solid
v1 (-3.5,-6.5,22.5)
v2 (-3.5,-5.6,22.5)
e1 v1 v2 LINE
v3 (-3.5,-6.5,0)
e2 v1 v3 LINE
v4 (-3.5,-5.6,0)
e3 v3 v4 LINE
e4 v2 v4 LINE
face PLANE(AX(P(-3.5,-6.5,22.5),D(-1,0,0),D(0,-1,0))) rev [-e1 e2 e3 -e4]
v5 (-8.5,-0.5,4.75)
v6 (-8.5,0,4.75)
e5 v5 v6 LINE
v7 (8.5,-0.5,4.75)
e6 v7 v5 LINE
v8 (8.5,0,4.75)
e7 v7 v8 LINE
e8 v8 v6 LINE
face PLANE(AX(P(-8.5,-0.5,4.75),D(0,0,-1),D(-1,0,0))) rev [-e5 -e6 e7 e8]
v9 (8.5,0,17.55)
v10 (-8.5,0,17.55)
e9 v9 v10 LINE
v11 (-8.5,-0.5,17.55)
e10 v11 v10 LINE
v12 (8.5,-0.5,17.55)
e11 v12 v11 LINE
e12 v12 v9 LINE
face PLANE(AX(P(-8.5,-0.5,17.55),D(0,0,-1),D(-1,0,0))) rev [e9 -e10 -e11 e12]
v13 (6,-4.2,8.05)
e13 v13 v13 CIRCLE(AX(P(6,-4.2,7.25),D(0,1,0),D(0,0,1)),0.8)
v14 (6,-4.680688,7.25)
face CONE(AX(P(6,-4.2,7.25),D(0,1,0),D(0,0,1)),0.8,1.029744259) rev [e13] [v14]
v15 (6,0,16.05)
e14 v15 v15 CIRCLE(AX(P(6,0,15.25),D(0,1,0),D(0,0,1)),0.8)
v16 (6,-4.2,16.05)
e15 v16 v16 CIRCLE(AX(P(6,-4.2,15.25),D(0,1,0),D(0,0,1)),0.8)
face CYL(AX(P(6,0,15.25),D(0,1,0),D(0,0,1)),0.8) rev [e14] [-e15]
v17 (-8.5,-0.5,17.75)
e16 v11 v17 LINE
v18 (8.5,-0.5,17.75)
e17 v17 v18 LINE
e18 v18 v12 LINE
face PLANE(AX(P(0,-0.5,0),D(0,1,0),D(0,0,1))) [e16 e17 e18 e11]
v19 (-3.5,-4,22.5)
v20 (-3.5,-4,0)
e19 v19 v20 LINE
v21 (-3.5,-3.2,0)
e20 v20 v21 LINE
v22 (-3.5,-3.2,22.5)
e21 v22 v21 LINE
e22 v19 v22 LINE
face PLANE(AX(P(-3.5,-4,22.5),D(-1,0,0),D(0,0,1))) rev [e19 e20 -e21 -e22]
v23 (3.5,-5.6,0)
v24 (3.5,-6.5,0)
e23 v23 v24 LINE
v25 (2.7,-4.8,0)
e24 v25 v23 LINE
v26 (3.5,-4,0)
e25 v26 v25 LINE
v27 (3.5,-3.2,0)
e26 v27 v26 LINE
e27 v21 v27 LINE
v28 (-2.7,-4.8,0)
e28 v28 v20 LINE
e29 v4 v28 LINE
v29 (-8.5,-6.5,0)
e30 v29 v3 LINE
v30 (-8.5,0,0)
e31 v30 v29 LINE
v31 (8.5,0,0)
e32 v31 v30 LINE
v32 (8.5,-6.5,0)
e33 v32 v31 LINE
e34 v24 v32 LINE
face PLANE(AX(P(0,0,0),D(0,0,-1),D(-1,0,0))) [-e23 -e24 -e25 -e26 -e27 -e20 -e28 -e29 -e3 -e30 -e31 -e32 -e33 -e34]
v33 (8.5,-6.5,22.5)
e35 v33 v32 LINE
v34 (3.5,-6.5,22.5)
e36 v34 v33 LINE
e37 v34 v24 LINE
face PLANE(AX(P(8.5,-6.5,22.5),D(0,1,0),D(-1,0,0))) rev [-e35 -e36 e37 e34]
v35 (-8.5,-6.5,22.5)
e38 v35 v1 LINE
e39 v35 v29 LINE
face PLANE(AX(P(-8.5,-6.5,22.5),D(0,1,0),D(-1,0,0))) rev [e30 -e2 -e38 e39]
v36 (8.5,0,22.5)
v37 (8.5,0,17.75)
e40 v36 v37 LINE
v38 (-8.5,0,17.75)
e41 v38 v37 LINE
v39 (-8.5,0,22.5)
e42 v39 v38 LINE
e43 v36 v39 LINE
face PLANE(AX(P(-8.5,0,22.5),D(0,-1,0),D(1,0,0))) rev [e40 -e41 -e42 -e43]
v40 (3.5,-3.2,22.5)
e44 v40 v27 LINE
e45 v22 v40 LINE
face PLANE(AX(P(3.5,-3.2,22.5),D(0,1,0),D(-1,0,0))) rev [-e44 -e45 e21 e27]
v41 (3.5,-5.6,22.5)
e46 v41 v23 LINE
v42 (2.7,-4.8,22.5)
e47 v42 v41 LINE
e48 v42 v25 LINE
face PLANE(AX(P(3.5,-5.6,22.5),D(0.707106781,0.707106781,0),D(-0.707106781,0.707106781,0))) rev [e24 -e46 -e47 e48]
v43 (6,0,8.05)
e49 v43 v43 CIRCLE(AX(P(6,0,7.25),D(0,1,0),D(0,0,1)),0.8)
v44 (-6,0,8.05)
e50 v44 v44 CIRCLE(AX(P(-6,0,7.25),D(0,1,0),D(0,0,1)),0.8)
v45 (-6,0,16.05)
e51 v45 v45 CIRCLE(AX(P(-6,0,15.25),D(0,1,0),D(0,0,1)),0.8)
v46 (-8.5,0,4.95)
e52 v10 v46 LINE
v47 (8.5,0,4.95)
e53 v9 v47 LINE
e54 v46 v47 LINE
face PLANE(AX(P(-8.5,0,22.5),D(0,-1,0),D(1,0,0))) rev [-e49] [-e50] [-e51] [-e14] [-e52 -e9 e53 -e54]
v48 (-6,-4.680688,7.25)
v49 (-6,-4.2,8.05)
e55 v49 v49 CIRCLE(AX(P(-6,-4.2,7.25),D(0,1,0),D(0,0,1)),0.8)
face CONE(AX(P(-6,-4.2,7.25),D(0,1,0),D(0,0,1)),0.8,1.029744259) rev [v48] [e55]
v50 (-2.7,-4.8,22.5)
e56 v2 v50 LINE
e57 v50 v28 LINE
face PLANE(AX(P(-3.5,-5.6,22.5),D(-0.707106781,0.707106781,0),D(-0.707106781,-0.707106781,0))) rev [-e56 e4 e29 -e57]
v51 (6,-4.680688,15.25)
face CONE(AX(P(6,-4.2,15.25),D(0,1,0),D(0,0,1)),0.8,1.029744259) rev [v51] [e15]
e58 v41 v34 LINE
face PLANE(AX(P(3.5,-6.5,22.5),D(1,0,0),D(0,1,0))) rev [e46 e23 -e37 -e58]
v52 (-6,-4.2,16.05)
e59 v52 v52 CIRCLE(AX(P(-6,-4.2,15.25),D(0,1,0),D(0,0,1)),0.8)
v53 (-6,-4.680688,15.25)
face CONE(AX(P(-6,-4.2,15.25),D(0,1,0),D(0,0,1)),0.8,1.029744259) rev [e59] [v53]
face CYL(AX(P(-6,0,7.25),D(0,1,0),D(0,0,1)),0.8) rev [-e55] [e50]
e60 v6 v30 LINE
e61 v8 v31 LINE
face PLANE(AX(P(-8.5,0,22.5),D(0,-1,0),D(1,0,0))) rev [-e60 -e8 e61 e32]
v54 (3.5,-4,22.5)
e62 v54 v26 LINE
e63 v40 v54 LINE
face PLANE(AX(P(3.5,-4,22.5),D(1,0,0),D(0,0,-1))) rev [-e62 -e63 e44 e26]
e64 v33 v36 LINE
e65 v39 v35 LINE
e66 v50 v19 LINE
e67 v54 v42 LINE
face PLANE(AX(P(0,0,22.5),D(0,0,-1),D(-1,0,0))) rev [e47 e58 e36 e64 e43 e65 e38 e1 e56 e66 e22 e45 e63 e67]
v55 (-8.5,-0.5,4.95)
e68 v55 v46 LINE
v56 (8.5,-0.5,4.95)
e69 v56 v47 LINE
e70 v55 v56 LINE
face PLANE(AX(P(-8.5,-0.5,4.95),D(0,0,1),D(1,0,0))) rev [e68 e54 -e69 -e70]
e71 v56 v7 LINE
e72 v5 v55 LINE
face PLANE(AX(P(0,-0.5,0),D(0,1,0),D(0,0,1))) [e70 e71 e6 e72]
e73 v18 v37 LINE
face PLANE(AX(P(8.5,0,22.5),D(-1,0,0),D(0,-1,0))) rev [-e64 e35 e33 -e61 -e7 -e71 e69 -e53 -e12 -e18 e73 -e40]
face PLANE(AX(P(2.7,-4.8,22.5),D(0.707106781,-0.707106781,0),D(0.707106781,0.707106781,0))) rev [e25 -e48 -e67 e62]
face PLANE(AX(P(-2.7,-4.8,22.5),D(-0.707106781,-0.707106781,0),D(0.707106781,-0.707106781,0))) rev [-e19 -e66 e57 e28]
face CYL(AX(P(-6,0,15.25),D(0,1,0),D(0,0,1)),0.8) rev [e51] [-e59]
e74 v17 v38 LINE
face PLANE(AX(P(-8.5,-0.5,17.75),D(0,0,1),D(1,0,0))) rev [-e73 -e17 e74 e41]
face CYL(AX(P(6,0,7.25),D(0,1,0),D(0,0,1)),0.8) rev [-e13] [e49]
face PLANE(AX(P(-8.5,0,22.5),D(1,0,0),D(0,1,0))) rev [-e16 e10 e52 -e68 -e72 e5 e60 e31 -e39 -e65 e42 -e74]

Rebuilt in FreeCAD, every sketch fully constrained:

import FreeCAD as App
import Part
import Sketcher

V = App.Vector


def add_polygon(sketch, points):
    """Adds a closed chain of lines whose ends are joined by coincident constraints."""
    first, n = sketch.GeometryCount, len(points)
    for a, b in zip(points, points[1:] + points[:1]):
        sketch.addGeometry(Part.LineSegment(App.Vector(*a, 0), App.Vector(*b, 0)), False)
    for i in range(n):
        sketch.addConstraint(Sketcher.Constraint("Coincident", first + i, 2, first + (i + 1) % n, 1))

doc = App.newDocument("Part")
body = doc.addObject("PartDesign::Body", "Body")

# Sketch on XY plane
sketch1 = body.newObject("Sketcher::SketchObject", "Sketch")
sketch1.AttachmentSupport = (doc.getObject("XY_Plane"), [""])
sketch1.MapMode = "FlatFace"
add_polygon(sketch1, [(8.5, 0), (-8.5, 0), (-8.5, -6.5), (-3.5, -6.5), (-3.5, -5.6), (-2.7, -4.8), (-3.5, -4), (-3.5, -3.2), (3.5, -3.2), (3.5, -4), (2.7, -4.8), (3.5, -5.6), (3.5, -6.5), (8.5, -6.5)])  # lines 0-13
sketch1.addConstraint(Sketcher.Constraint("Horizontal", 0))
sketch1.addConstraint(Sketcher.Constraint("Vertical", 1))
sketch1.addConstraint(Sketcher.Constraint("Horizontal", 2))
sketch1.addConstraint(Sketcher.Constraint("Vertical", 3))
sketch1.addConstraint(Sketcher.Constraint("Vertical", 6))
sketch1.addConstraint(Sketcher.Constraint("Horizontal", 7))
sketch1.addConstraint(Sketcher.Constraint("Vertical", 8))
sketch1.addConstraint(Sketcher.Constraint("Vertical", 11))
sketch1.addConstraint(Sketcher.Constraint("Horizontal", 12))
sketch1.addConstraint(Sketcher.Constraint("Vertical", 13))
sketch1.addConstraint(Sketcher.Constraint("Symmetric", 0, 2, 13, 2, -1, 1))
sketch1.addConstraint(Sketcher.Constraint("Symmetric", 5, 2, 8, 2, -2))
sketch1.addConstraint(Sketcher.Constraint("Symmetric", 4, 2, 9, 2, -2))
sketch1.addConstraint(Sketcher.Constraint("Symmetric", 3, 2, 10, 2, -2))
sketch1.addConstraint(Sketcher.Constraint("Perpendicular", 4, 5))
sketch1.addConstraint(Sketcher.Constraint("Perpendicular", 5, 9))
sketch1.addConstraint(Sketcher.Constraint("Horizontal", 2, 2, 11, 2))
sketch1.addConstraint(Sketcher.Constraint("Vertical", 3, 2, 5, 2))
sketch1.addConstraint(Sketcher.Constraint("DistanceX", 0, 2, 0, 1, 17.0))
sketch1.addConstraint(Sketcher.Constraint("DistanceX", 2, 1, 2, 2, 5.0))
sketch1.addConstraint(Sketcher.Constraint("DistanceY", 1, 2, 1, 1, 6.5))
sketch1.addConstraint(Sketcher.Constraint("DistanceY", 3, 1, 3, 2, 0.9))
sketch1.addConstraint(Sketcher.Constraint("DistanceY", 6, 1, 6, 2, 0.8))
sketch1.addConstraint(Sketcher.Constraint("DistanceY", 5, 2, -1, 1, 4.0))
pad1 = body.newObject("PartDesign::Pad", "Pad")
pad1.Profile = sketch1
pad1.Length = 22.5

# Sketch on XZ plane
sketch2 = body.newObject("Sketcher::SketchObject", "Sketch001")
sketch2.AttachmentSupport = (doc.getObject("XZ_Plane"), [""])
sketch2.MapMode = "FlatFace"
add_polygon(sketch2, [(-8.5, 17.55), (-8.5, 17.75), (8.5, 17.75), (8.5, 17.55)])  # lines 0-3
add_polygon(sketch2, [(-8.5, 4.75), (-8.5, 4.95), (8.5, 4.95), (8.5, 4.75)])  # lines 4-7
sketch2.addConstraint(Sketcher.Constraint("Vertical", 0))
sketch2.addConstraint(Sketcher.Constraint("Horizontal", 1))
sketch2.addConstraint(Sketcher.Constraint("Vertical", 2))
sketch2.addConstraint(Sketcher.Constraint("Horizontal", 3))
sketch2.addConstraint(Sketcher.Constraint("Vertical", 4))
sketch2.addConstraint(Sketcher.Constraint("Horizontal", 5))
sketch2.addConstraint(Sketcher.Constraint("Vertical", 6))
sketch2.addConstraint(Sketcher.Constraint("Horizontal", 7))
sketch2.addConstraint(Sketcher.Constraint("Vertical", 3, 2, 4, 2))
sketch2.addConstraint(Sketcher.Constraint("Vertical", 2, 2, 5, 2))
sketch2.addConstraint(Sketcher.Constraint("Equal", 2, 4))
sketch2.addConstraint(Sketcher.Constraint("DistanceX", 1, 1, 1, 2, 17.0))
sketch2.addConstraint(Sketcher.Constraint("DistanceY", 0, 1, 0, 2, 0.2))
sketch2.addConstraint(Sketcher.Constraint("DistanceY", 6, 2, 1, 2, 13.0))
sketch2.addConstraint(Sketcher.Constraint("DistanceX", 0, 2, -1, 1, 8.5))
sketch2.addConstraint(Sketcher.Constraint("DistanceY", -1, 1, 0, 2, 17.75))
pocket1 = body.newObject("PartDesign::Pocket", "Pocket")
pocket1.Profile = sketch2
pocket1.Length = 0.5
pocket1.Reversed = True

# Sketch on XZ plane
sketch3 = body.newObject("Sketcher::SketchObject", "Sketch002")
sketch3.AttachmentSupport = (doc.getObject("XZ_Plane"), [""])
sketch3.MapMode = "FlatFace"
sketch3.addGeometry(Part.Circle(V(-6, 7.2, 0), V(0, 0, 1), 0.8), False)
sketch3.addGeometry(Part.Circle(V(6, 7.2, 0), V(0, 0, 1), 0.8), False)
sketch3.addGeometry(Part.Circle(V(6, 15.2, 0), V(0, 0, 1), 0.8), False)
sketch3.addGeometry(Part.Circle(V(-6, 15.2, 0), V(0, 0, 1), 0.8), False)
sketch3.addConstraint(Sketcher.Constraint("Equal", 0, 1))
sketch3.addConstraint(Sketcher.Constraint("Equal", 1, 2))
sketch3.addConstraint(Sketcher.Constraint("Equal", 2, 3))
sketch3.addConstraint(Sketcher.Constraint("Symmetric", 0, 3, 1, 3, -2))
sketch3.addConstraint(Sketcher.Constraint("Symmetric", 2, 3, 3, 3, -2))
sketch3.addConstraint(Sketcher.Constraint("Vertical", 1, 3, 2, 3))
sketch3.addConstraint(Sketcher.Constraint("Diameter", 0, 1.6))
sketch3.addConstraint(Sketcher.Constraint("DistanceX", 0, 3, -1, 1, 6.0))
sketch3.addConstraint(Sketcher.Constraint("DistanceY", 1, 3, 2, 3, 8.0))
sketch3.addConstraint(Sketcher.Constraint("DistanceY", -1, 1, 0, 3, 7.25))
doc.recompute()
hole = body.newObject("PartDesign::Hole", "Hole")
hole.Profile = sketch3
hole.ThreadType = "None"
hole.Diameter = 1.6
hole.DepthType = "Dimension"
hole.Depth = 4.2
hole.DrillPoint = "Angled"
hole.DrillPointAngle = 118
hole.Reversed = True

doc.recompute()
